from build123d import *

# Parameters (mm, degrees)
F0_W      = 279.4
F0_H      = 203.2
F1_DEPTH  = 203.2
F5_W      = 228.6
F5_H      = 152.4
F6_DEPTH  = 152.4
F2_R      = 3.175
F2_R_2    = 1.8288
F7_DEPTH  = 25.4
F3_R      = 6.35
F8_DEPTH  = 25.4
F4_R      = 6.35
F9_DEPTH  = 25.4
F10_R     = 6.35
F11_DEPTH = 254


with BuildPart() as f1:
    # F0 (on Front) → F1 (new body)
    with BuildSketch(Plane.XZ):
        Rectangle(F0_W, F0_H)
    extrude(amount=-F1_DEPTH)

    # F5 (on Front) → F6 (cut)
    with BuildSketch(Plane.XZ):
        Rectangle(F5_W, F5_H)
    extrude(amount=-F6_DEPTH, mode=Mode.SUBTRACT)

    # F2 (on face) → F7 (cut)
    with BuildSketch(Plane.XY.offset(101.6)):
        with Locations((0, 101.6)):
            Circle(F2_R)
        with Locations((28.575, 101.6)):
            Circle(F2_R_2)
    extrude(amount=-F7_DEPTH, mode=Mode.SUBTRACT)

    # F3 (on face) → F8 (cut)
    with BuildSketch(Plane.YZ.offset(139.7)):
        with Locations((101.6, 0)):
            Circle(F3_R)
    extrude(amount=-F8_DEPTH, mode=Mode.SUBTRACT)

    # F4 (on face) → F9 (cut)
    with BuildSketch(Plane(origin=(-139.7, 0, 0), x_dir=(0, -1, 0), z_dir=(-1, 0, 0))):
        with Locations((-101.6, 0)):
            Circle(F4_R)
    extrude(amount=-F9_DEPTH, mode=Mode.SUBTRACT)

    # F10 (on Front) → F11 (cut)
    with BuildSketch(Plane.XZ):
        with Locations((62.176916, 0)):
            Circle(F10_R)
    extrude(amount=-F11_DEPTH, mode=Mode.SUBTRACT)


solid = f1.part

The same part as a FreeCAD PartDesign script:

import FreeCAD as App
import Part
import Sketcher

V = App.Vector
Q = App.Units.Quantity

doc = App.newDocument("Part")
params = doc.addObject("Spreadsheet::Sheet", "Params")
for row, (alias, value) in enumerate([
    ("sketch1_width", "11 in"),
    ("sketch1_height", "8 in"),
    ("pad1_length", "8 in"),
    ("sketch2_width", "9 in"),
    ("sketch2_height", "6 in"),
    ("pocket1_length", "6 in"),
    ("sketch3_diameter", "0.25 in"),
    ("sketch3_diameter2", "0.144 in"),
    ("pocket2_length", "1 in"),
    ("sketch4_diameter", "0.5 in"),
    ("pocket3_length", "1 in"),
    ("sketch5_diameter", "0.5 in"),
    ("pocket4_length", "1 in"),
    ("sketch6_diameter", "0.5 in"),
    ("pocket5_length", "10 in"),
], start=1):
    params.set(f"A{row}", alias)
    params.set(f"B{row}", "=" + value)
    params.setAlias(f"B{row}", alias)

body = doc.addObject("PartDesign::Body", "Body")

# Sketch on XZ plane
sketch1 = body.newObject("Sketcher::SketchObject", "Sketch")
sketch1.AttachmentSupport = (doc.getObject("XZ_Plane"), [""])
sketch1.MapMode = "FlatFace"
sketch1.addGeometry([
    Part.LineSegment(V(-140, 102, 0), V(-140, -102, 0)),
    Part.LineSegment(V(-140, -102, 0), V(140, -102, 0)),
    Part.LineSegment(V(140, -102, 0), V(140, 102, 0)),
    Part.LineSegment(V(140, 102, 0), V(-140, 102, 0)),
], False)
sketch1.addConstraint([
    Sketcher.Constraint("Coincident", 0, 2, 1, 1),
    Sketcher.Constraint("Coincident", 1, 2, 2, 1),
    Sketcher.Constraint("Coincident", 2, 2, 3, 1),
    Sketcher.Constraint("Coincident", 3, 2, 0, 1),
    Sketcher.Constraint("Vertical", 0),
    Sketcher.Constraint("Horizontal", 1),
    Sketcher.Constraint("Vertical", 2),
    Sketcher.Constraint("Horizontal", 3),
    Sketcher.Constraint("Symmetric", 0, 2, 2, 2, -1, 1),
    Sketcher.Constraint("DistanceX", 1, 1, 1, 2, Q("11 in")),
    Sketcher.Constraint("DistanceY", 0, 2, 0, 1, Q("8 in")),
])
sketch1.setExpression("Constraints[9]", "Params.sketch1_width")
sketch1.setExpression("Constraints[10]", "Params.sketch1_height")
pad1 = body.newObject("PartDesign::Pad", "Pad")
pad1.Profile = sketch1
pad1.setExpression("Length", "Params.pad1_length")
pad1.Reversed = True

# Sketch on XZ plane
sketch2 = body.newObject("Sketcher::SketchObject", "Sketch001")
sketch2.AttachmentSupport = (doc.getObject("XZ_Plane"), [""])
sketch2.MapMode = "FlatFace"
sketch2.addGeometry([
    Part.LineSegment(V(-114, 76, 0), V(-114, -76, 0)),
    Part.LineSegment(V(-114, -76, 0), V(114, -76, 0)),
    Part.LineSegment(V(114, -76, 0), V(114, 76, 0)),
    Part.LineSegment(V(114, 76, 0), V(-114, 76, 0)),
], False)
sketch2.addConstraint([
    Sketcher.Constraint("Coincident", 0, 2, 1, 1),
    Sketcher.Constraint("Coincident", 1, 2, 2, 1),
    Sketcher.Constraint("Coincident", 2, 2, 3, 1),
    Sketcher.Constraint("Coincident", 3, 2, 0, 1),
    Sketcher.Constraint("Vertical", 0),
    Sketcher.Constraint("Horizontal", 1),
    Sketcher.Constraint("Vertical", 2),
    Sketcher.Constraint("Horizontal", 3),
    Sketcher.Constraint("Symmetric", 0, 2, 2, 2, -1, 1),
    Sketcher.Constraint("DistanceX", 1, 1, 1, 2, Q("9 in")),
    Sketcher.Constraint("DistanceY", 0, 2, 0, 1, Q("6 in")),
])
sketch2.setExpression("Constraints[9]", "Params.sketch2_width")
sketch2.setExpression("Constraints[10]", "Params.sketch2_height")
pocket1 = body.newObject("PartDesign::Pocket", "Pocket")
pocket1.Profile = sketch2
pocket1.setExpression("Length", "Params.pocket1_length")

# Sketch on XY plane
sketch3 = body.newObject("Sketcher::SketchObject", "Sketch002")
sketch3.AttachmentSupport = (doc.getObject("XY_Plane"), [""])
sketch3.MapMode = "FlatFace"
sketch3.AttachmentOffset = App.Placement(V(0, 0, 4 * 25.4), App.Rotation())
sketch3.addGeometry([
    Part.Circle(V(0, 101.6, 0), V(0, 0, 1), 3.2),
    Part.Circle(V(28.6, 101.6, 0), V(0, 0, 1), 1.8),
], False)
sketch3.addConstraint([
    Sketcher.Constraint("PointOnObject", 0, 3, -2),
    Sketcher.Constraint("Horizontal", 0, 3, 1, 3),
    Sketcher.Constraint("Diameter", 0, Q("0.25 in")),
    Sketcher.Constraint("Diameter", 1, Q("0.144 in")),
    Sketcher.Constraint("DistanceY", -1, 1, 0, 3, Q("4 in")),
    Sketcher.Constraint("DistanceX", -1, 1, 1, 3, Q("1.125 in")),
])
sketch3.setExpression("Constraints[2]", "Params.sketch3_diameter")
sketch3.setExpression("Constraints[3]", "Params.sketch3_diameter2")
pocket2 = body.newObject("PartDesign::Pocket", "Pocket001")
pocket2.Profile = sketch3
pocket2.setExpression("Length", "Params.pocket2_length")

# Sketch on YZ plane
sketch4 = body.newObject("Sketcher::SketchObject", "Sketch003")
sketch4.AttachmentSupport = (doc.getObject("YZ_Plane"), [""])
sketch4.MapMode = "FlatFace"
sketch4.AttachmentOffset = App.Placement(V(0, 0, 5.5 * 25.4), App.Rotation())
sketch4.addGeometry(Part.Circle(V(102, 0, 0), V(0, 0, 1), 6), False)
sketch4.addConstraint([
    Sketcher.Constraint("PointOnObject", 0, 3, -1),
    Sketcher.Constraint("Diameter", 0, Q("0.5 in")),
    Sketcher.Constraint("DistanceX", -1, 1, 0, 3, Q("4 in")),
])
sketch4.setExpression("Constraints[1]", "Params.sketch4_diameter")
pocket3 = body.newObject("PartDesign::Pocket", "Pocket002")
pocket3.Profile = sketch4
pocket3.setExpression("Length", "Params.pocket3_length")

# Sketch on YZ plane
sketch5 = body.newObject("Sketcher::SketchObject", "Sketch004")
sketch5.AttachmentSupport = (doc.getObject("YZ_Plane"), [""])
sketch5.MapMode = "FlatFace"
sketch5.AttachmentOffset = App.Placement(V(0, 0, -5.5 * 25.4), App.Rotation())
sketch5.addGeometry(Part.Circle(V(102, 0, 0), V(0, 0, 1), 6), False)
sketch5.addConstraint([
    Sketcher.Constraint("PointOnObject", 0, 3, -1),
    Sketcher.Constraint("Diameter", 0, Q("0.5 in")),
    Sketcher.Constraint("DistanceX", -1, 1, 0, 3, Q("4 in")),
])
sketch5.setExpression("Constraints[1]", "Params.sketch5_diameter")
pocket4 = body.newObject("PartDesign::Pocket", "Pocket003")
pocket4.Profile = sketch5
pocket4.setExpression("Length", "Params.pocket4_length")
pocket4.Reversed = True

# Sketch on XZ plane
sketch6 = body.newObject("Sketcher::SketchObject", "Sketch005")
sketch6.AttachmentSupport = (doc.getObject("XZ_Plane"), [""])
sketch6.MapMode = "FlatFace"
sketch6.addGeometry(Part.Circle(V(62, 0, 0), V(0, 0, 1), 6), False)
sketch6.addConstraint([
    Sketcher.Constraint("PointOnObject", 0, 3, -1),
    Sketcher.Constraint("Diameter", 0, Q("0.5 in")),
    Sketcher.Constraint("DistanceX", -1, 1, 0, 3, 62.176916),
])
sketch6.setExpression("Constraints[1]", "Params.sketch6_diameter")
pocket5 = body.newObject("PartDesign::Pocket", "Pocket004")
pocket5.Profile = sketch6
pocket5.setExpression("Length", "Params.pocket5_length")

doc.recompute()
